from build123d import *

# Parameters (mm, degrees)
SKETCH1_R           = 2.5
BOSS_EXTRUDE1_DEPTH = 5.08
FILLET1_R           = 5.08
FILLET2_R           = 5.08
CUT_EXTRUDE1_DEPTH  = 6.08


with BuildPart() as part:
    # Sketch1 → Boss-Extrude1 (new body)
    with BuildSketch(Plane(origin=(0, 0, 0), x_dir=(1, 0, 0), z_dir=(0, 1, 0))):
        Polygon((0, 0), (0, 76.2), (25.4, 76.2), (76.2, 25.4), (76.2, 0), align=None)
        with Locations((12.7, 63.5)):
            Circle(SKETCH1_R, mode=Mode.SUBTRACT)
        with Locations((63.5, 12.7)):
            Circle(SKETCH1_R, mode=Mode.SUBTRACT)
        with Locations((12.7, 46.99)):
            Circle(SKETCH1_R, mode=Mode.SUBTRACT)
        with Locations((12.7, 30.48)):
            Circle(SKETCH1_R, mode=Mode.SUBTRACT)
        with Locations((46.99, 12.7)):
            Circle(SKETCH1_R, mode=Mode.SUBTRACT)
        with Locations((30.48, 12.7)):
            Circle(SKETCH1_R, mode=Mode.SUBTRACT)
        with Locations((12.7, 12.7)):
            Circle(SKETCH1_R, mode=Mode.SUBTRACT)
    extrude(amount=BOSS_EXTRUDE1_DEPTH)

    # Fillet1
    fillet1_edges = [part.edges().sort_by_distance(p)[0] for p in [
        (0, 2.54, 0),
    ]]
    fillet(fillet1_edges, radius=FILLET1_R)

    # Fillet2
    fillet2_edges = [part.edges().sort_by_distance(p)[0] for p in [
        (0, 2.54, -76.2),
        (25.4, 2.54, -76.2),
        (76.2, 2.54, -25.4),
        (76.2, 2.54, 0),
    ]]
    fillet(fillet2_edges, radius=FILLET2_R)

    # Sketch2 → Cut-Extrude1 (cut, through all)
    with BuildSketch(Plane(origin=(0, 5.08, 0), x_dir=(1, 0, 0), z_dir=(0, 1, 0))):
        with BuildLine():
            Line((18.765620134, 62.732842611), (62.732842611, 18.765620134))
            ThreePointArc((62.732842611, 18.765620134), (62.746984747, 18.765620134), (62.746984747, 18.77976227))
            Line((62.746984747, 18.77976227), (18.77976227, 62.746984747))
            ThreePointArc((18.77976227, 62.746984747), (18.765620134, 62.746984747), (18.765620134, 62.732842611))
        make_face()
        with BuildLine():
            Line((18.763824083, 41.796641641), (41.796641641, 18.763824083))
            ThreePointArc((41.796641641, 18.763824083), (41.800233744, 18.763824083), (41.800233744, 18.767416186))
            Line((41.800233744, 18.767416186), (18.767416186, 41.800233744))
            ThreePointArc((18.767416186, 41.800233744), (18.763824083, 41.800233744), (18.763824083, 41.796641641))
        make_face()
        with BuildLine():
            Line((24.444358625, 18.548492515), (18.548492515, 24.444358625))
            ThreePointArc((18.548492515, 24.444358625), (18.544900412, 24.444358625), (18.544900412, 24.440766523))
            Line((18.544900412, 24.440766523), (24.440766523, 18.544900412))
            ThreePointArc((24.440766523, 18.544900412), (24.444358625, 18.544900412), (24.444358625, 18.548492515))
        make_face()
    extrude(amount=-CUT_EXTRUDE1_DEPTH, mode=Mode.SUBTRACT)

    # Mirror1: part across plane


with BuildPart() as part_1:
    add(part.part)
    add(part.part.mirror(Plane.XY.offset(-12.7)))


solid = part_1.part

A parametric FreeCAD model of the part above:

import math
import FreeCAD as App
import Part
import Sketcher
Q = App.Units.Quantity


def edges_at(feature, points):
    """Names of the edges that pass closest to the given points."""
    edges = feature.Shape.Edges
    near = lambda p: min(range(len(edges)), key=lambda i: edges[i].distToShape(Part.Vertex(*p))[0])
    return sorted({f"Edge{near(p) + 1}" for p in points})


def add_polygon(sketch, points):
    """Adds a closed chain of lines whose ends are joined by coincident constraints."""
    first, n = sketch.GeometryCount, len(points)
    for a, b in zip(points, points[1:] + points[:1]):
        sketch.addGeometry(Part.LineSegment(App.Vector(*a, 0), App.Vector(*b, 0)), False)
    for i in range(n):
        sketch.addConstraint(Sketcher.Constraint("Coincident", first + i, 2, first + (i + 1) % n, 1))

doc = App.newDocument("Part")
body = doc.addObject("PartDesign::Body", "Body")

sketch1 = body.newObject("Sketcher::SketchObject", "Sketch")
sketch1.AttachmentSupport = (doc.getObject("XZ_Plane"), [""])
sketch1.MapMode = "FlatFace"
add_polygon(sketch1, [(0, -76.2), (0, 0), (76.2, 0), (76.2, -25.4), (25.4, -76.2)])
sketch1.addGeometry(Part.Circle(App.Vector(63.5, -12.7, 0), App.Vector(0, 0, 1), 2.5), False)
sketch1.addGeometry(Part.Circle(App.Vector(47, -12.7, 0), App.Vector(0, 0, 1), 2.5), False)
sketch1.addGeometry(Part.Circle(App.Vector(30.5, -12.7, 0), App.Vector(0, 0, 1), 2.5), False)
sketch1.addGeometry(Part.Circle(App.Vector(12.7, -12.7, 0), App.Vector(0, 0, 1), 2.5), False)
sketch1.addGeometry(Part.Circle(App.Vector(12.7, -30.5, 0), App.Vector(0, 0, 1), 2.5), False)
sketch1.addGeometry(Part.Circle(App.Vector(12.7, -47, 0), App.Vector(0, 0, 1), 2.5), False)
sketch1.addGeometry(Part.Circle(App.Vector(12.7, -63.5, 0), App.Vector(0, 0, 1), 2.5), False)
sketch1.addConstraint(Sketcher.Constraint("Vertical", 0))
sketch1.addConstraint(Sketcher.Constraint("Horizontal", 1))
sketch1.addConstraint(Sketcher.Constraint("Vertical", 2))
sketch1.addConstraint(Sketcher.Constraint("Horizontal", 4))
sketch1.addConstraint(Sketcher.Constraint("Coincident", 0, 2, -1, 1))
sketch1.addConstraint(Sketcher.Constraint("Equal", 5, 6))
sketch1.addConstraint(Sketcher.Constraint("Equal", 6, 7))
sketch1.addConstraint(Sketcher.Constraint("Equal", 7, 8))
sketch1.addConstraint(Sketcher.Constraint("Equal", 8, 9))
sketch1.addConstraint(Sketcher.Constraint("Equal", 9, 10))
sketch1.addConstraint(Sketcher.Constraint("Equal", 10, 11))
sketch1.addConstraint(Sketcher.Constraint("Horizontal", 5, 3, 6, 3))
sketch1.addConstraint(Sketcher.Constraint("Horizontal", 6, 3, 7, 3))
sketch1.addConstraint(Sketcher.Constraint("Horizontal", 7, 3, 8, 3))
sketch1.addConstraint(Sketcher.Constraint("Vertical", 8, 3, 9, 3))
sketch1.addConstraint(Sketcher.Constraint("Vertical", 9, 3, 10, 3))
sketch1.addConstraint(Sketcher.Constraint("Vertical", 10, 3, 11, 3))
sketch1.addConstraint(Sketcher.Constraint("Equal", 1, 0))
sketch1.addConstraint(Sketcher.Constraint("Equal", 4, 2))
sketch1.addConstraint(Sketcher.Constraint("DistanceX", 1, 1, 1, 2, Q("3 in")))
sketch1.addConstraint(Sketcher.Constraint("DistanceX", 4, 2, 4, 1, Q("1 in")))
sketch1.addConstraint(Sketcher.Constraint("DistanceX", 8, 3, 5, 3, Q("2 in")))
sketch1.addConstraint(Sketcher.Constraint("DistanceY", 11, 3, 8, 3, Q("2 in")))
sketch1.addConstraint(Sketcher.Constraint("DistanceX", -1, 1, 5, 3, Q("2.5 in")))
sketch1.addConstraint(Sketcher.Constraint("DistanceY", 5, 3, -1, 1, Q("0.5 in")))
sketch1.addConstraint(Sketcher.Constraint("DistanceX", -1, 1, 7, 3, Q("1.2 in")))
sketch1.addConstraint(Sketcher.Constraint("DistanceY", 9, 3, -1, 1, Q("1.2 in")))
sketch1.addConstraint(Sketcher.Constraint("Diameter", 5, Q("5 mm")))
sketch1.addConstraint(Sketcher.Constraint("DistanceX", -1, 1, 6, 3, Q("1.85 in")))
sketch1.addConstraint(Sketcher.Constraint("DistanceY", 10, 3, -1, 1, Q("1.85 in")))
pad1 = body.newObject("PartDesign::Pad", "Pad")
pad1.Profile = sketch1
pad1.Length = Q("0.2 in")
pad1.Reversed = True
doc.recompute()

fillet = body.newObject("PartDesign::Fillet", "Fillet")
fillet.Base = (pad1, edges_at(pad1, [(0, 2.54, 0)]))
fillet.Radius = Q("0.2 in")
doc.recompute()

fillet2 = body.newObject("PartDesign::Fillet", "Fillet001")
fillet2.Base = (fillet, edges_at(fillet, [
    (0, 2.54, -76.2),
    (25.4, 2.54, -76.2),
    (76.2, 2.54, -25.4),
    (76.2, 2.54, 0),
]))
fillet2.Radius = Q("0.2 in")

sketch2 = body.newObject("Sketcher::SketchObject", "Sketch001")
sketch2.AttachmentSupport = (doc.getObject("XZ_Plane"), [""])
sketch2.MapMode = "FlatFace"
sketch2.AttachmentOffset = App.Placement(App.Vector(0, 0, -0.2 * 25.4), App.Rotation())
sketch2.addGeometry(Part.LineSegment(App.Vector(18.76562, -62.732843, 0), App.Vector(62.732843, -18.76562, 0)), False)
sketch2.addGeometry(Part.ArcOfCircle(Part.Circle(App.Vector(62.739914, -18.772691, 0), App.Vector(0, 0, 1), 0.01), math.radians(-45), math.radians(135)), False)
sketch2.addGeometry(Part.LineSegment(App.Vector(62.746985, -18.779762, 0), App.Vector(18.779762, -62.746985, 0)), False)
sketch2.addGeometry(Part.ArcOfCircle(Part.Circle(App.Vector(18.772691, -62.739914, 0), App.Vector(0, 0, 1), 0.01), math.radians(135), math.radians(315)), False)
sketch2.addGeometry(Part.LineSegment(App.Vector(18.763824, -41.796642, 0), App.Vector(41.796642, -18.763824, 0)), False)
sketch2.addGeometry(Part.ArcOfCircle(Part.Circle(App.Vector(41.798438, -18.76562, 0), App.Vector(0, 0, 1), 0.00254), math.radians(-45.000016), math.radians(135.000016)), False)
sketch2.addGeometry(Part.LineSegment(App.Vector(41.800234, -18.767416, 0), App.Vector(18.767416, -41.800234, 0)), False)
sketch2.addGeometry(Part.ArcOfCircle(Part.Circle(App.Vector(18.76562, -41.798438, 0), App.Vector(0, 0, 1), 0.00254), math.radians(134.999984), math.radians(315.000016)), False)
sketch2.addGeometry(Part.LineSegment(App.Vector(24.444359, -18.548493, 0), App.Vector(18.548493, -24.444359, 0)), False)
sketch2.addGeometry(Part.ArcOfCircle(Part.Circle(App.Vector(18.546696, -24.442563, 0), App.Vector(0, 0, 1), 0.00254), math.radians(135), math.radians(315.000016)), False)
sketch2.addGeometry(Part.LineSegment(App.Vector(18.5449, -24.440767, 0), App.Vector(24.440767, -18.5449, 0)), False)
sketch2.addGeometry(Part.ArcOfCircle(Part.Circle(App.Vector(24.442563, -18.546696, 0), App.Vector(0, 0, 1), 0.00254), math.radians(-45.000016), math.radians(135)), False)
sketch2.addConstraint(Sketcher.Constraint("Tangent", 0, 2, 1, 2))
sketch2.addConstraint(Sketcher.Constraint("Tangent", 1, 1, 2, 1))
sketch2.addConstraint(Sketcher.Constraint("Tangent", 2, 2, 3, 2))
sketch2.addConstraint(Sketcher.Constraint("Tangent", 3, 1, 0, 1))
sketch2.addConstraint(Sketcher.Constraint("Tangent", 4, 2, 5, 2))
sketch2.addConstraint(Sketcher.Constraint("Tangent", 5, 1, 6, 1))
sketch2.addConstraint(Sketcher.Constraint("Tangent", 6, 2, 7, 2))
sketch2.addConstraint(Sketcher.Constraint("Tangent", 7, 1, 4, 1))
sketch2.addConstraint(Sketcher.Constraint("Tangent", 8, 2, 9, 2))
sketch2.addConstraint(Sketcher.Constraint("Tangent", 9, 1, 10, 1))
sketch2.addConstraint(Sketcher.Constraint("Tangent", 10, 2, 11, 2))
sketch2.addConstraint(Sketcher.Constraint("Tangent", 11, 1, 8, 1))
sketch2.addConstraint(Sketcher.Constraint("Equal", 1, 3))
sketch2.addConstraint(Sketcher.Constraint("Equal", 5, 7))
sketch2.addConstraint(Sketcher.Constraint("Equal", 7, 9))
sketch2.addConstraint(Sketcher.Constraint("Equal", 9, 11))
sketch2.addConstraint(Sketcher.Constraint("Parallel", 2, 4))
sketch2.addConstraint(Sketcher.Constraint("Parallel", 6, 8))
sketch2.addConstraint(Sketcher.Constraint("Horizontal", 5, 3, 0, 2))
sketch2.addConstraint(Sketcher.Constraint("Vertical", 7, 3, 3, 1))
sketch2.addConstraint(Sketcher.Constraint("Angle", 0, Q("45 deg")))
sketch2.addConstraint(Sketcher.Constraint("Radius", 5, Q("0.0001 in")))
sketch2.addConstraint(Sketcher.Constraint("Radius", 1, Q("0.01 mm")))
sketch2.addConstraint(Sketcher.Constraint("DistanceX", -1, 1, 9, 1, Q("18.5449 mm")))
sketch2.addConstraint(Sketcher.Constraint("DistanceY", 10, 2, -1, 1, Q("18.5449 mm")))
sketch2.addConstraint(Sketcher.Constraint("DistanceY", 9, 3, 1, 1, Q("5.6628 mm")))
sketch2.addConstraint(Sketcher.Constraint("DistanceX", 2, 2, 11, 3, Q("5.6628 mm")))
sketch2.addConstraint(Sketcher.Constraint("DistanceX", 4, 2, 0, 2, Q("20.936201 mm")))
sketch2.addConstraint(Sketcher.Constraint("DistanceY", 1, 3, -1, 1, Q("18.772691 mm")))
sketch2.addConstraint(Sketcher.Constraint("DistanceX", -1, 1, 4, 2, Q("41.796642 mm")))
pocket1 = body.newObject("PartDesign::Pocket", "Pocket")
pocket1.Profile = sketch2
pocket1.Type = "ThroughAll"
pocket1.Reversed = True
body2 = doc.addObject("PartDesign::Body", "Body001")
doc.recompute()

body2.BaseFeature = body
doc.recompute()

mirroring = doc.addObject("Part::Mirroring", "Mirroring")
mirroring.Source = body
mirroring.Base = App.Vector(0, 0, -12.7)
mirroring.Normal = App.Vector(0, 0, 1)
body3 = doc.addObject("PartDesign::Body", "Body002")
body3.BaseFeature = mirroring
boolean = body2.newObject("PartDesign::Boolean", "Boolean")
boolean.Type = "Fuse"
boolean.addObjects([body3])
doc.recompute()
mirroring.Visibility = False

doc.recompute()
